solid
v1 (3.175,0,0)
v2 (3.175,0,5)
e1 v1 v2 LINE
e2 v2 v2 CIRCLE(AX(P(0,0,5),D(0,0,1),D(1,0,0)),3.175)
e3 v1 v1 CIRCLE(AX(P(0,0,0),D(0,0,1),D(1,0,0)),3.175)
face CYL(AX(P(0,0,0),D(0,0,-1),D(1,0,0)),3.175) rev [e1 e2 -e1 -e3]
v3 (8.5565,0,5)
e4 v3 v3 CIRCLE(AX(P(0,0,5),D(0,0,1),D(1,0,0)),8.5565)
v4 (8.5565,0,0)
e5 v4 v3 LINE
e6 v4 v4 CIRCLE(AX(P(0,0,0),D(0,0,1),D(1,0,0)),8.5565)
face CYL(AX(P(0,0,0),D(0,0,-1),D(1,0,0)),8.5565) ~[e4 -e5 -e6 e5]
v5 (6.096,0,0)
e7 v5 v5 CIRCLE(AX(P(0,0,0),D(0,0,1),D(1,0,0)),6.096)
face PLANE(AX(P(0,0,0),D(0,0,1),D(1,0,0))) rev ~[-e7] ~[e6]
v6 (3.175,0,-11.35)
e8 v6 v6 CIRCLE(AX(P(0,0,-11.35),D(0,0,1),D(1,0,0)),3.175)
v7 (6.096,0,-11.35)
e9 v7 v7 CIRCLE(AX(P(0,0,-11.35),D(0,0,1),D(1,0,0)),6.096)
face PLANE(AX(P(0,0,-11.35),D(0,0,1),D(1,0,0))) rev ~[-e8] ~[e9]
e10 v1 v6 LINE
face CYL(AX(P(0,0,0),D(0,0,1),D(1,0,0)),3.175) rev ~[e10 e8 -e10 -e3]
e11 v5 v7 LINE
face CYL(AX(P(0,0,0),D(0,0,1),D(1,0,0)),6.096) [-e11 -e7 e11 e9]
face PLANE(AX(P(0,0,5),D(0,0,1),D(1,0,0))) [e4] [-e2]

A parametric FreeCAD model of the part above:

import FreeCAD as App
import Part
import Sketcher
from FreeCAD import Vector
Q = App.Units.Quantity

doc = App.newDocument("Part")
params = doc.addObject("Spreadsheet::Sheet", "Params")
for row, (alias, value) in enumerate([
    ("sketch1_diameter", "0.48 in"),
    ("sketch1_diameter2", "0.25 in"),
    ("pad1_length", "11.35 mm"),
    ("sketch2_diameter", "0.25 in"),
    ("pad2_length", "5 mm"),
], start=1):
    params.set(f"A{row}", alias)
    params.set(f"B{row}", "=" + value)
    params.setAlias(f"B{row}", alias)

body = doc.addObject("PartDesign::Body", "Body")

sketch1 = body.newObject("Sketcher::SketchObject", "Sketch")
sketch1.AttachmentSupport = (doc.getObject("XY_Plane"), [""])
sketch1.MapMode = "FlatFace"
sketch1.addGeometry(Part.Circle(Vector(0, 0, 0), Vector(0, 0, 1), 6.1), False)
sketch1.addGeometry(Part.Circle(Vector(0, 0, 0), Vector(0, 0, 1), 3.2), False)
sketch1.addConstraint(Sketcher.Constraint("Coincident", 0, 3, -1, 1))
sketch1.addConstraint(Sketcher.Constraint("Coincident", 1, 3, -1, 1))
sketch1.addConstraint(Sketcher.Constraint("Diameter", 0, Q("0.48 in")))
sketch1.addConstraint(Sketcher.Constraint("Diameter", 1, Q("0.25 in")))
sketch1.setExpression("Constraints[2]", "Params.sketch1_diameter")
sketch1.setExpression("Constraints[3]", "Params.sketch1_diameter2")
pad1 = body.newObject("PartDesign::Pad", "Pad")
pad1.Profile = sketch1
pad1.setExpression("Length", "Params.pad1_length")
pad1.Reversed = True

sketch2 = body.newObject("Sketcher::SketchObject", "Sketch001")
sketch2.AttachmentSupport = (doc.getObject("XY_Plane"), [""])
sketch2.MapMode = "FlatFace"
sketch2.addGeometry(Part.Circle(Vector(0, 0, 0), Vector(0, 0, 1), 8.6), False)
sketch2.addGeometry(Part.Circle(Vector(0, 0, 0), Vector(0, 0, 1), 3.2), False)
sketch2.addConstraint(Sketcher.Constraint("Coincident", 0, 3, -1, 1))
sketch2.addConstraint(Sketcher.Constraint("Coincident", 1, 3, -1, 1))
sketch2.addConstraint(Sketcher.Constraint("Diameter", 1, Q("0.25 in")))
sketch2.addConstraint(Sketcher.Constraint("Diameter", 0, Q("17.113 mm")))
sketch2.setExpression("Constraints[2]", "Params.sketch2_diameter")
pad2 = body.newObject("PartDesign::Pad", "Pad001")
pad2.Profile = sketch2
pad2.setExpression("Length", "Params.pad2_length")

doc.recompute()
